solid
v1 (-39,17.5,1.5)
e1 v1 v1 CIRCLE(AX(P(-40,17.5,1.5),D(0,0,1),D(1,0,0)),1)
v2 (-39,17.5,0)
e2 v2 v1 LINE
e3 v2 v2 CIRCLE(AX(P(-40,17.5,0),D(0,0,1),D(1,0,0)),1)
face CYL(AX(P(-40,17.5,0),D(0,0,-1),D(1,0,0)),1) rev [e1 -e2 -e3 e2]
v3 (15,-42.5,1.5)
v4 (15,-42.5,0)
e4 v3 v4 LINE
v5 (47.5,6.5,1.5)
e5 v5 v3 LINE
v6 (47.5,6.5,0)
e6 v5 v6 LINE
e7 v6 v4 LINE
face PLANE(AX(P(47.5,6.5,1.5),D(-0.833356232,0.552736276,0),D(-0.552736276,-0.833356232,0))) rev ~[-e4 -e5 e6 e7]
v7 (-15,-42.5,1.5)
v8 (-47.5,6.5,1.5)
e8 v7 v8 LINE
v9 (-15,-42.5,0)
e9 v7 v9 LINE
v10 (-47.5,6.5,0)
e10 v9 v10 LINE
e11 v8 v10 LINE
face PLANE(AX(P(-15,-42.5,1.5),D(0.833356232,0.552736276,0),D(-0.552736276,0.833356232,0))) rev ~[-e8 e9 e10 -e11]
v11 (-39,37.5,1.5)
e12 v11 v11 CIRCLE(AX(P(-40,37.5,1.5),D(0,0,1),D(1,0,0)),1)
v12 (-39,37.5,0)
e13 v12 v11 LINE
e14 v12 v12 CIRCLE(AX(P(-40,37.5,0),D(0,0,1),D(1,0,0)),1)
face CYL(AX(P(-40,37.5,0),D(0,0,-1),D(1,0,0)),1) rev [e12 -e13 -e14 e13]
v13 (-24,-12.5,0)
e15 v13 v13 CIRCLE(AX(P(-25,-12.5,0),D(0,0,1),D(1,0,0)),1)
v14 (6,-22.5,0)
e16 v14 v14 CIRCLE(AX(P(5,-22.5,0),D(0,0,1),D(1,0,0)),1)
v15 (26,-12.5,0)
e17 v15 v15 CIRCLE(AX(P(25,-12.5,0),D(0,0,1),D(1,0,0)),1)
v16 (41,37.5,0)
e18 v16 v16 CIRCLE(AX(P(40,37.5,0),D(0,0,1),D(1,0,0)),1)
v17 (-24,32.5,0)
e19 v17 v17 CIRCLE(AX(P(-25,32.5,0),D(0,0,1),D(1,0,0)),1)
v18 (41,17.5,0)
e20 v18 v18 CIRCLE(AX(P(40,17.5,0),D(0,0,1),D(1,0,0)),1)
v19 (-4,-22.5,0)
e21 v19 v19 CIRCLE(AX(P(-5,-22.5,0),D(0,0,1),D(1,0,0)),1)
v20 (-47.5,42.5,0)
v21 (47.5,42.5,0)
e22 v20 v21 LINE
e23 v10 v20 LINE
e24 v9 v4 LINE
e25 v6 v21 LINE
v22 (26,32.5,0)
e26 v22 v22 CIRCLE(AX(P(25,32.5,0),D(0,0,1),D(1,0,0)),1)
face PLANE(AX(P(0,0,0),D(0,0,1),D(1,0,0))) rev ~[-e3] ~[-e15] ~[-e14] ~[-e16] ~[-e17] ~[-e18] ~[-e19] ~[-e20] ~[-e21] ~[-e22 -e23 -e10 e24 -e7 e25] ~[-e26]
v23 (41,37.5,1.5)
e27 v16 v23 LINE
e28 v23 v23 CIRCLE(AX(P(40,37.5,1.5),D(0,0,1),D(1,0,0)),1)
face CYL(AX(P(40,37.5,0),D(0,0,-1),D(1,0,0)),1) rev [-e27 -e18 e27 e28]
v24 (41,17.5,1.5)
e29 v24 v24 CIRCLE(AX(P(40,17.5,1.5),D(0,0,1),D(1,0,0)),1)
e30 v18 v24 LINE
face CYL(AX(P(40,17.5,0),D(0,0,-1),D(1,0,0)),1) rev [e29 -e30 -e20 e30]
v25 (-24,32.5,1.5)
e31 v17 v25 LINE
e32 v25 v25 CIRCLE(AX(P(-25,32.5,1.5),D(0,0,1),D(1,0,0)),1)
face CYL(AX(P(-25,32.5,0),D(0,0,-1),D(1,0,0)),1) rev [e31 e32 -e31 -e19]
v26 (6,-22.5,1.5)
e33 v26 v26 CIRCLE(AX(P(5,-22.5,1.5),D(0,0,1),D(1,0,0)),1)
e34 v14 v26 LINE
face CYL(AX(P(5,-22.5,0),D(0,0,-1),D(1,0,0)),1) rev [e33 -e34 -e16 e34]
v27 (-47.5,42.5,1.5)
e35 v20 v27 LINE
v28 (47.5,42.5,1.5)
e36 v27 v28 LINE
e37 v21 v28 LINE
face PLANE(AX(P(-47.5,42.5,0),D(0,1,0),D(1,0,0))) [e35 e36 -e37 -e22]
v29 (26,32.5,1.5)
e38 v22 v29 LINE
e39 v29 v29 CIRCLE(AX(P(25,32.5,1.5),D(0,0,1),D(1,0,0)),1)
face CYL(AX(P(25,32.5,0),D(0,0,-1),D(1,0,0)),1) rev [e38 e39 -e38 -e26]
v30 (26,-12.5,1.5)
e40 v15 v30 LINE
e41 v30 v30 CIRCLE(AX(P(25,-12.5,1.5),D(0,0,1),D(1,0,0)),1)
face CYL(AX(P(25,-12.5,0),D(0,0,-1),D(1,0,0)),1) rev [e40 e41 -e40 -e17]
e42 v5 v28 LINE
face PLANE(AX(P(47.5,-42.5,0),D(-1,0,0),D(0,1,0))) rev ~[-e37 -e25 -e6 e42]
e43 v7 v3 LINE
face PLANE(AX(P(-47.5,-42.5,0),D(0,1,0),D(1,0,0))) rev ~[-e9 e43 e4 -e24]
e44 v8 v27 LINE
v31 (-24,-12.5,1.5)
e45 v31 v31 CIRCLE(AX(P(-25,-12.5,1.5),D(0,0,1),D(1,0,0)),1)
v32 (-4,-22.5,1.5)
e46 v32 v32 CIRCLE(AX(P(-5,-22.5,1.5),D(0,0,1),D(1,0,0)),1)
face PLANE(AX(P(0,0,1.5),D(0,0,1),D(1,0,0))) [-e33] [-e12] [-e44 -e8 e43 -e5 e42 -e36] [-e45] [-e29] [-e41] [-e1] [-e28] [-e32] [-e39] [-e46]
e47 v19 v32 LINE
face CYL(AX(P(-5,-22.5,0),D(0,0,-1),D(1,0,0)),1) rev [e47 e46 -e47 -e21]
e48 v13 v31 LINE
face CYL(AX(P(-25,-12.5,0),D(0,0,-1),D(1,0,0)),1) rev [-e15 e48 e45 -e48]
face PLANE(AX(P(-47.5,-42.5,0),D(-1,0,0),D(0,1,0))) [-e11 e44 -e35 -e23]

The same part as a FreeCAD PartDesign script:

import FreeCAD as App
import Part
import Sketcher
Q = App.Units.Quantity


def add_polygon(sketch, points):
    """Adds a closed chain of lines whose ends are joined by coincident constraints."""
    first, n = sketch.GeometryCount, len(points)
    for a, b in zip(points, points[1:] + points[:1]):
        sketch.addGeometry(Part.LineSegment(App.Vector(*a, 0), App.Vector(*b, 0)), False)
    for i in range(n):
        sketch.addConstraint(Sketcher.Constraint("Coincident", first + i, 2, first + (i + 1) % n, 1))

doc = App.newDocument("Part")
params = doc.addObject("Spreadsheet::Sheet", "Params")
for row, (alias, value) in enumerate([
    ("sketch1_diameter", "2 mm"),
    ("sketch1_width", "95 mm"),
    ("sketch1_height", "85 mm"),
    ("pad1_length", "1.5 mm"),
    ("sketch2_height", "49 mm"),
    ("sketch2_width", "32.5 mm"),
], start=1):
    params.set(f"A{row}", alias)
    params.set(f"B{row}", "=" + value)
    params.setAlias(f"B{row}", alias)

body = doc.addObject("PartDesign::Body", "Body")

sketch1 = body.newObject("Sketcher::SketchObject", "Sketch")
sketch1.AttachmentSupport = (doc.getObject("XY_Plane"), [""])
sketch1.MapMode = "FlatFace"
add_polygon(sketch1, [(-47.5, 42.5), (-47.5, -42.5), (47.5, -42.5), (47.5, 42.5)])
sketch1.addGeometry(Part.Circle(App.Vector(-25, -12.5, 0), App.Vector(0, 0, 1), 1), False)
sketch1.addGeometry(Part.Circle(App.Vector(-5, -22.5, 0), App.Vector(0, 0, 1), 1), False)
sketch1.addGeometry(Part.Circle(App.Vector(5, -22.5, 0), App.Vector(0, 0, 1), 1), False)
sketch1.addGeometry(Part.Circle(App.Vector(25, -12.5, 0), App.Vector(0, 0, 1), 1), False)
sketch1.addGeometry(Part.Circle(App.Vector(-40, 17.5, 0), App.Vector(0, 0, 1), 1), False)
sketch1.addGeometry(Part.Circle(App.Vector(-40, 37.5, 0), App.Vector(0, 0, 1), 1), False)
sketch1.addGeometry(Part.Circle(App.Vector(-25, 32.5, 0), App.Vector(0, 0, 1), 1), False)
sketch1.addGeometry(Part.Circle(App.Vector(40, 17.5, 0), App.Vector(0, 0, 1), 1), False)
sketch1.addGeometry(Part.Circle(App.Vector(25, 32.5, 0), App.Vector(0, 0, 1), 1), False)
sketch1.addGeometry(Part.Circle(App.Vector(40, 37.5, 0), App.Vector(0, 0, 1), 1), False)
sketch1.addConstraint(Sketcher.Constraint("Vertical", 0))
sketch1.addConstraint(Sketcher.Constraint("Horizontal", 1))
sketch1.addConstraint(Sketcher.Constraint("Vertical", 2))
sketch1.addConstraint(Sketcher.Constraint("Horizontal", 3))
sketch1.addConstraint(Sketcher.Constraint("Equal", 4, 5))
sketch1.addConstraint(Sketcher.Constraint("Equal", 5, 6))
sketch1.addConstraint(Sketcher.Constraint("Equal", 6, 7))
sketch1.addConstraint(Sketcher.Constraint("Equal", 7, 8))
sketch1.addConstraint(Sketcher.Constraint("Equal", 8, 9))
sketch1.addConstraint(Sketcher.Constraint("Equal", 9, 10))
sketch1.addConstraint(Sketcher.Constraint("Equal", 10, 11))
sketch1.addConstraint(Sketcher.Constraint("Equal", 11, 12))
sketch1.addConstraint(Sketcher.Constraint("Equal", 12, 13))
sketch1.addConstraint(Sketcher.Constraint("Symmetric", 0, 2, 2, 2, -1, 1))
sketch1.addConstraint(Sketcher.Constraint("Symmetric", 5, 3, 6, 3, -2))
sketch1.addConstraint(Sketcher.Constraint("Symmetric", 4, 3, 7, 3, -2))
sketch1.addConstraint(Sketcher.Constraint("Symmetric", 8, 3, 11, 3, -2))
sketch1.addConstraint(Sketcher.Constraint("Symmetric", 10, 3, 12, 3, -2))
sketch1.addConstraint(Sketcher.Constraint("Symmetric", 9, 3, 13, 3, -2))
sketch1.addConstraint(Sketcher.Constraint("Vertical", 8, 3, 9, 3))
sketch1.addConstraint(Sketcher.Constraint("Vertical", 4, 3, 10, 3))
sketch1.addConstraint(Sketcher.Constraint("Diameter", 4, Q("2 mm")))
sketch1.addConstraint(Sketcher.Constraint("DistanceX", 1, 1, 1, 2, Q("95 mm")))
sketch1.addConstraint(Sketcher.Constraint("DistanceY", 0, 2, 0, 1, Q("85 mm")))
sketch1.addConstraint(Sketcher.Constraint("DistanceX", 4, 3, -1, 1, Q("25 mm")))
sketch1.addConstraint(Sketcher.Constraint("DistanceX", 5, 3, -1, 1, Q("5 mm")))
sketch1.addConstraint(Sketcher.Constraint("DistanceX", 8, 3, -1, 1, Q("40 mm")))
sketch1.addConstraint(Sketcher.Constraint("DistanceY", 5, 3, 4, 3, Q("10 mm")))
sketch1.addConstraint(Sketcher.Constraint("DistanceY", 4, 3, 8, 3, Q("30 mm")))
sketch1.addConstraint(Sketcher.Constraint("DistanceY", 8, 3, 9, 3, Q("20 mm")))
sketch1.addConstraint(Sketcher.Constraint("DistanceY", 10, 3, 9, 3, Q("5 mm")))
sketch1.addConstraint(Sketcher.Constraint("DistanceY", 0, 2, 4, 3, Q("30 mm")))
sketch1.setExpression("Constraints[25]", "Params.sketch1_diameter")
sketch1.setExpression("Constraints[26]", "Params.sketch1_width")
sketch1.setExpression("Constraints[27]", "Params.sketch1_height")
pad1 = body.newObject("PartDesign::Pad", "Pad")
pad1.Profile = sketch1
pad1.setExpression("Length", "Params.pad1_length")

sketch2 = body.newObject("Sketcher::SketchObject", "Sketch001")
sketch2.AttachmentSupport = (doc.getObject("XY_Plane"), [""])
sketch2.MapMode = "FlatFace"
sketch2.AttachmentOffset = App.Placement(App.Vector(0, 0, 1.5), App.Rotation())
add_polygon(sketch2, [(-15, -42), (-48, 6), (-48, -42)])
add_polygon(sketch2, [(48, -42), (48, 6), (15, -42)])
sketch2.addConstraint(Sketcher.Constraint("Vertical", 1))
sketch2.addConstraint(Sketcher.Constraint("Horizontal", 2))
sketch2.addConstraint(Sketcher.Constraint("Vertical", 3))
sketch2.addConstraint(Sketcher.Constraint("Horizontal", 5))
sketch2.addConstraint(Sketcher.Constraint("Symmetric", 0, 2, 3, 2, -2))
sketch2.addConstraint(Sketcher.Constraint("Symmetric", 2, 2, 4, 2, -2))
sketch2.addConstraint(Sketcher.Constraint("DistanceY", 1, 2, 1, 1, Q("49 mm")))
sketch2.addConstraint(Sketcher.Constraint("DistanceX", 2, 1, 2, 2, Q("32.5 mm")))
sketch2.addConstraint(Sketcher.Constraint("DistanceX", 2, 2, -1, 1, Q("15 mm")))
sketch2.addConstraint(Sketcher.Constraint("DistanceY", -1, 1, 0, 2, Q("6.5 mm")))
sketch2.setExpression("Constraints[12]", "Params.sketch2_height")
sketch2.setExpression("Constraints[13]", "Params.sketch2_width")
pocket1 = body.newObject("PartDesign::Pocket", "Pocket")
pocket1.Profile = sketch2
pocket1.Type = "ThroughAll"

doc.recompute()
